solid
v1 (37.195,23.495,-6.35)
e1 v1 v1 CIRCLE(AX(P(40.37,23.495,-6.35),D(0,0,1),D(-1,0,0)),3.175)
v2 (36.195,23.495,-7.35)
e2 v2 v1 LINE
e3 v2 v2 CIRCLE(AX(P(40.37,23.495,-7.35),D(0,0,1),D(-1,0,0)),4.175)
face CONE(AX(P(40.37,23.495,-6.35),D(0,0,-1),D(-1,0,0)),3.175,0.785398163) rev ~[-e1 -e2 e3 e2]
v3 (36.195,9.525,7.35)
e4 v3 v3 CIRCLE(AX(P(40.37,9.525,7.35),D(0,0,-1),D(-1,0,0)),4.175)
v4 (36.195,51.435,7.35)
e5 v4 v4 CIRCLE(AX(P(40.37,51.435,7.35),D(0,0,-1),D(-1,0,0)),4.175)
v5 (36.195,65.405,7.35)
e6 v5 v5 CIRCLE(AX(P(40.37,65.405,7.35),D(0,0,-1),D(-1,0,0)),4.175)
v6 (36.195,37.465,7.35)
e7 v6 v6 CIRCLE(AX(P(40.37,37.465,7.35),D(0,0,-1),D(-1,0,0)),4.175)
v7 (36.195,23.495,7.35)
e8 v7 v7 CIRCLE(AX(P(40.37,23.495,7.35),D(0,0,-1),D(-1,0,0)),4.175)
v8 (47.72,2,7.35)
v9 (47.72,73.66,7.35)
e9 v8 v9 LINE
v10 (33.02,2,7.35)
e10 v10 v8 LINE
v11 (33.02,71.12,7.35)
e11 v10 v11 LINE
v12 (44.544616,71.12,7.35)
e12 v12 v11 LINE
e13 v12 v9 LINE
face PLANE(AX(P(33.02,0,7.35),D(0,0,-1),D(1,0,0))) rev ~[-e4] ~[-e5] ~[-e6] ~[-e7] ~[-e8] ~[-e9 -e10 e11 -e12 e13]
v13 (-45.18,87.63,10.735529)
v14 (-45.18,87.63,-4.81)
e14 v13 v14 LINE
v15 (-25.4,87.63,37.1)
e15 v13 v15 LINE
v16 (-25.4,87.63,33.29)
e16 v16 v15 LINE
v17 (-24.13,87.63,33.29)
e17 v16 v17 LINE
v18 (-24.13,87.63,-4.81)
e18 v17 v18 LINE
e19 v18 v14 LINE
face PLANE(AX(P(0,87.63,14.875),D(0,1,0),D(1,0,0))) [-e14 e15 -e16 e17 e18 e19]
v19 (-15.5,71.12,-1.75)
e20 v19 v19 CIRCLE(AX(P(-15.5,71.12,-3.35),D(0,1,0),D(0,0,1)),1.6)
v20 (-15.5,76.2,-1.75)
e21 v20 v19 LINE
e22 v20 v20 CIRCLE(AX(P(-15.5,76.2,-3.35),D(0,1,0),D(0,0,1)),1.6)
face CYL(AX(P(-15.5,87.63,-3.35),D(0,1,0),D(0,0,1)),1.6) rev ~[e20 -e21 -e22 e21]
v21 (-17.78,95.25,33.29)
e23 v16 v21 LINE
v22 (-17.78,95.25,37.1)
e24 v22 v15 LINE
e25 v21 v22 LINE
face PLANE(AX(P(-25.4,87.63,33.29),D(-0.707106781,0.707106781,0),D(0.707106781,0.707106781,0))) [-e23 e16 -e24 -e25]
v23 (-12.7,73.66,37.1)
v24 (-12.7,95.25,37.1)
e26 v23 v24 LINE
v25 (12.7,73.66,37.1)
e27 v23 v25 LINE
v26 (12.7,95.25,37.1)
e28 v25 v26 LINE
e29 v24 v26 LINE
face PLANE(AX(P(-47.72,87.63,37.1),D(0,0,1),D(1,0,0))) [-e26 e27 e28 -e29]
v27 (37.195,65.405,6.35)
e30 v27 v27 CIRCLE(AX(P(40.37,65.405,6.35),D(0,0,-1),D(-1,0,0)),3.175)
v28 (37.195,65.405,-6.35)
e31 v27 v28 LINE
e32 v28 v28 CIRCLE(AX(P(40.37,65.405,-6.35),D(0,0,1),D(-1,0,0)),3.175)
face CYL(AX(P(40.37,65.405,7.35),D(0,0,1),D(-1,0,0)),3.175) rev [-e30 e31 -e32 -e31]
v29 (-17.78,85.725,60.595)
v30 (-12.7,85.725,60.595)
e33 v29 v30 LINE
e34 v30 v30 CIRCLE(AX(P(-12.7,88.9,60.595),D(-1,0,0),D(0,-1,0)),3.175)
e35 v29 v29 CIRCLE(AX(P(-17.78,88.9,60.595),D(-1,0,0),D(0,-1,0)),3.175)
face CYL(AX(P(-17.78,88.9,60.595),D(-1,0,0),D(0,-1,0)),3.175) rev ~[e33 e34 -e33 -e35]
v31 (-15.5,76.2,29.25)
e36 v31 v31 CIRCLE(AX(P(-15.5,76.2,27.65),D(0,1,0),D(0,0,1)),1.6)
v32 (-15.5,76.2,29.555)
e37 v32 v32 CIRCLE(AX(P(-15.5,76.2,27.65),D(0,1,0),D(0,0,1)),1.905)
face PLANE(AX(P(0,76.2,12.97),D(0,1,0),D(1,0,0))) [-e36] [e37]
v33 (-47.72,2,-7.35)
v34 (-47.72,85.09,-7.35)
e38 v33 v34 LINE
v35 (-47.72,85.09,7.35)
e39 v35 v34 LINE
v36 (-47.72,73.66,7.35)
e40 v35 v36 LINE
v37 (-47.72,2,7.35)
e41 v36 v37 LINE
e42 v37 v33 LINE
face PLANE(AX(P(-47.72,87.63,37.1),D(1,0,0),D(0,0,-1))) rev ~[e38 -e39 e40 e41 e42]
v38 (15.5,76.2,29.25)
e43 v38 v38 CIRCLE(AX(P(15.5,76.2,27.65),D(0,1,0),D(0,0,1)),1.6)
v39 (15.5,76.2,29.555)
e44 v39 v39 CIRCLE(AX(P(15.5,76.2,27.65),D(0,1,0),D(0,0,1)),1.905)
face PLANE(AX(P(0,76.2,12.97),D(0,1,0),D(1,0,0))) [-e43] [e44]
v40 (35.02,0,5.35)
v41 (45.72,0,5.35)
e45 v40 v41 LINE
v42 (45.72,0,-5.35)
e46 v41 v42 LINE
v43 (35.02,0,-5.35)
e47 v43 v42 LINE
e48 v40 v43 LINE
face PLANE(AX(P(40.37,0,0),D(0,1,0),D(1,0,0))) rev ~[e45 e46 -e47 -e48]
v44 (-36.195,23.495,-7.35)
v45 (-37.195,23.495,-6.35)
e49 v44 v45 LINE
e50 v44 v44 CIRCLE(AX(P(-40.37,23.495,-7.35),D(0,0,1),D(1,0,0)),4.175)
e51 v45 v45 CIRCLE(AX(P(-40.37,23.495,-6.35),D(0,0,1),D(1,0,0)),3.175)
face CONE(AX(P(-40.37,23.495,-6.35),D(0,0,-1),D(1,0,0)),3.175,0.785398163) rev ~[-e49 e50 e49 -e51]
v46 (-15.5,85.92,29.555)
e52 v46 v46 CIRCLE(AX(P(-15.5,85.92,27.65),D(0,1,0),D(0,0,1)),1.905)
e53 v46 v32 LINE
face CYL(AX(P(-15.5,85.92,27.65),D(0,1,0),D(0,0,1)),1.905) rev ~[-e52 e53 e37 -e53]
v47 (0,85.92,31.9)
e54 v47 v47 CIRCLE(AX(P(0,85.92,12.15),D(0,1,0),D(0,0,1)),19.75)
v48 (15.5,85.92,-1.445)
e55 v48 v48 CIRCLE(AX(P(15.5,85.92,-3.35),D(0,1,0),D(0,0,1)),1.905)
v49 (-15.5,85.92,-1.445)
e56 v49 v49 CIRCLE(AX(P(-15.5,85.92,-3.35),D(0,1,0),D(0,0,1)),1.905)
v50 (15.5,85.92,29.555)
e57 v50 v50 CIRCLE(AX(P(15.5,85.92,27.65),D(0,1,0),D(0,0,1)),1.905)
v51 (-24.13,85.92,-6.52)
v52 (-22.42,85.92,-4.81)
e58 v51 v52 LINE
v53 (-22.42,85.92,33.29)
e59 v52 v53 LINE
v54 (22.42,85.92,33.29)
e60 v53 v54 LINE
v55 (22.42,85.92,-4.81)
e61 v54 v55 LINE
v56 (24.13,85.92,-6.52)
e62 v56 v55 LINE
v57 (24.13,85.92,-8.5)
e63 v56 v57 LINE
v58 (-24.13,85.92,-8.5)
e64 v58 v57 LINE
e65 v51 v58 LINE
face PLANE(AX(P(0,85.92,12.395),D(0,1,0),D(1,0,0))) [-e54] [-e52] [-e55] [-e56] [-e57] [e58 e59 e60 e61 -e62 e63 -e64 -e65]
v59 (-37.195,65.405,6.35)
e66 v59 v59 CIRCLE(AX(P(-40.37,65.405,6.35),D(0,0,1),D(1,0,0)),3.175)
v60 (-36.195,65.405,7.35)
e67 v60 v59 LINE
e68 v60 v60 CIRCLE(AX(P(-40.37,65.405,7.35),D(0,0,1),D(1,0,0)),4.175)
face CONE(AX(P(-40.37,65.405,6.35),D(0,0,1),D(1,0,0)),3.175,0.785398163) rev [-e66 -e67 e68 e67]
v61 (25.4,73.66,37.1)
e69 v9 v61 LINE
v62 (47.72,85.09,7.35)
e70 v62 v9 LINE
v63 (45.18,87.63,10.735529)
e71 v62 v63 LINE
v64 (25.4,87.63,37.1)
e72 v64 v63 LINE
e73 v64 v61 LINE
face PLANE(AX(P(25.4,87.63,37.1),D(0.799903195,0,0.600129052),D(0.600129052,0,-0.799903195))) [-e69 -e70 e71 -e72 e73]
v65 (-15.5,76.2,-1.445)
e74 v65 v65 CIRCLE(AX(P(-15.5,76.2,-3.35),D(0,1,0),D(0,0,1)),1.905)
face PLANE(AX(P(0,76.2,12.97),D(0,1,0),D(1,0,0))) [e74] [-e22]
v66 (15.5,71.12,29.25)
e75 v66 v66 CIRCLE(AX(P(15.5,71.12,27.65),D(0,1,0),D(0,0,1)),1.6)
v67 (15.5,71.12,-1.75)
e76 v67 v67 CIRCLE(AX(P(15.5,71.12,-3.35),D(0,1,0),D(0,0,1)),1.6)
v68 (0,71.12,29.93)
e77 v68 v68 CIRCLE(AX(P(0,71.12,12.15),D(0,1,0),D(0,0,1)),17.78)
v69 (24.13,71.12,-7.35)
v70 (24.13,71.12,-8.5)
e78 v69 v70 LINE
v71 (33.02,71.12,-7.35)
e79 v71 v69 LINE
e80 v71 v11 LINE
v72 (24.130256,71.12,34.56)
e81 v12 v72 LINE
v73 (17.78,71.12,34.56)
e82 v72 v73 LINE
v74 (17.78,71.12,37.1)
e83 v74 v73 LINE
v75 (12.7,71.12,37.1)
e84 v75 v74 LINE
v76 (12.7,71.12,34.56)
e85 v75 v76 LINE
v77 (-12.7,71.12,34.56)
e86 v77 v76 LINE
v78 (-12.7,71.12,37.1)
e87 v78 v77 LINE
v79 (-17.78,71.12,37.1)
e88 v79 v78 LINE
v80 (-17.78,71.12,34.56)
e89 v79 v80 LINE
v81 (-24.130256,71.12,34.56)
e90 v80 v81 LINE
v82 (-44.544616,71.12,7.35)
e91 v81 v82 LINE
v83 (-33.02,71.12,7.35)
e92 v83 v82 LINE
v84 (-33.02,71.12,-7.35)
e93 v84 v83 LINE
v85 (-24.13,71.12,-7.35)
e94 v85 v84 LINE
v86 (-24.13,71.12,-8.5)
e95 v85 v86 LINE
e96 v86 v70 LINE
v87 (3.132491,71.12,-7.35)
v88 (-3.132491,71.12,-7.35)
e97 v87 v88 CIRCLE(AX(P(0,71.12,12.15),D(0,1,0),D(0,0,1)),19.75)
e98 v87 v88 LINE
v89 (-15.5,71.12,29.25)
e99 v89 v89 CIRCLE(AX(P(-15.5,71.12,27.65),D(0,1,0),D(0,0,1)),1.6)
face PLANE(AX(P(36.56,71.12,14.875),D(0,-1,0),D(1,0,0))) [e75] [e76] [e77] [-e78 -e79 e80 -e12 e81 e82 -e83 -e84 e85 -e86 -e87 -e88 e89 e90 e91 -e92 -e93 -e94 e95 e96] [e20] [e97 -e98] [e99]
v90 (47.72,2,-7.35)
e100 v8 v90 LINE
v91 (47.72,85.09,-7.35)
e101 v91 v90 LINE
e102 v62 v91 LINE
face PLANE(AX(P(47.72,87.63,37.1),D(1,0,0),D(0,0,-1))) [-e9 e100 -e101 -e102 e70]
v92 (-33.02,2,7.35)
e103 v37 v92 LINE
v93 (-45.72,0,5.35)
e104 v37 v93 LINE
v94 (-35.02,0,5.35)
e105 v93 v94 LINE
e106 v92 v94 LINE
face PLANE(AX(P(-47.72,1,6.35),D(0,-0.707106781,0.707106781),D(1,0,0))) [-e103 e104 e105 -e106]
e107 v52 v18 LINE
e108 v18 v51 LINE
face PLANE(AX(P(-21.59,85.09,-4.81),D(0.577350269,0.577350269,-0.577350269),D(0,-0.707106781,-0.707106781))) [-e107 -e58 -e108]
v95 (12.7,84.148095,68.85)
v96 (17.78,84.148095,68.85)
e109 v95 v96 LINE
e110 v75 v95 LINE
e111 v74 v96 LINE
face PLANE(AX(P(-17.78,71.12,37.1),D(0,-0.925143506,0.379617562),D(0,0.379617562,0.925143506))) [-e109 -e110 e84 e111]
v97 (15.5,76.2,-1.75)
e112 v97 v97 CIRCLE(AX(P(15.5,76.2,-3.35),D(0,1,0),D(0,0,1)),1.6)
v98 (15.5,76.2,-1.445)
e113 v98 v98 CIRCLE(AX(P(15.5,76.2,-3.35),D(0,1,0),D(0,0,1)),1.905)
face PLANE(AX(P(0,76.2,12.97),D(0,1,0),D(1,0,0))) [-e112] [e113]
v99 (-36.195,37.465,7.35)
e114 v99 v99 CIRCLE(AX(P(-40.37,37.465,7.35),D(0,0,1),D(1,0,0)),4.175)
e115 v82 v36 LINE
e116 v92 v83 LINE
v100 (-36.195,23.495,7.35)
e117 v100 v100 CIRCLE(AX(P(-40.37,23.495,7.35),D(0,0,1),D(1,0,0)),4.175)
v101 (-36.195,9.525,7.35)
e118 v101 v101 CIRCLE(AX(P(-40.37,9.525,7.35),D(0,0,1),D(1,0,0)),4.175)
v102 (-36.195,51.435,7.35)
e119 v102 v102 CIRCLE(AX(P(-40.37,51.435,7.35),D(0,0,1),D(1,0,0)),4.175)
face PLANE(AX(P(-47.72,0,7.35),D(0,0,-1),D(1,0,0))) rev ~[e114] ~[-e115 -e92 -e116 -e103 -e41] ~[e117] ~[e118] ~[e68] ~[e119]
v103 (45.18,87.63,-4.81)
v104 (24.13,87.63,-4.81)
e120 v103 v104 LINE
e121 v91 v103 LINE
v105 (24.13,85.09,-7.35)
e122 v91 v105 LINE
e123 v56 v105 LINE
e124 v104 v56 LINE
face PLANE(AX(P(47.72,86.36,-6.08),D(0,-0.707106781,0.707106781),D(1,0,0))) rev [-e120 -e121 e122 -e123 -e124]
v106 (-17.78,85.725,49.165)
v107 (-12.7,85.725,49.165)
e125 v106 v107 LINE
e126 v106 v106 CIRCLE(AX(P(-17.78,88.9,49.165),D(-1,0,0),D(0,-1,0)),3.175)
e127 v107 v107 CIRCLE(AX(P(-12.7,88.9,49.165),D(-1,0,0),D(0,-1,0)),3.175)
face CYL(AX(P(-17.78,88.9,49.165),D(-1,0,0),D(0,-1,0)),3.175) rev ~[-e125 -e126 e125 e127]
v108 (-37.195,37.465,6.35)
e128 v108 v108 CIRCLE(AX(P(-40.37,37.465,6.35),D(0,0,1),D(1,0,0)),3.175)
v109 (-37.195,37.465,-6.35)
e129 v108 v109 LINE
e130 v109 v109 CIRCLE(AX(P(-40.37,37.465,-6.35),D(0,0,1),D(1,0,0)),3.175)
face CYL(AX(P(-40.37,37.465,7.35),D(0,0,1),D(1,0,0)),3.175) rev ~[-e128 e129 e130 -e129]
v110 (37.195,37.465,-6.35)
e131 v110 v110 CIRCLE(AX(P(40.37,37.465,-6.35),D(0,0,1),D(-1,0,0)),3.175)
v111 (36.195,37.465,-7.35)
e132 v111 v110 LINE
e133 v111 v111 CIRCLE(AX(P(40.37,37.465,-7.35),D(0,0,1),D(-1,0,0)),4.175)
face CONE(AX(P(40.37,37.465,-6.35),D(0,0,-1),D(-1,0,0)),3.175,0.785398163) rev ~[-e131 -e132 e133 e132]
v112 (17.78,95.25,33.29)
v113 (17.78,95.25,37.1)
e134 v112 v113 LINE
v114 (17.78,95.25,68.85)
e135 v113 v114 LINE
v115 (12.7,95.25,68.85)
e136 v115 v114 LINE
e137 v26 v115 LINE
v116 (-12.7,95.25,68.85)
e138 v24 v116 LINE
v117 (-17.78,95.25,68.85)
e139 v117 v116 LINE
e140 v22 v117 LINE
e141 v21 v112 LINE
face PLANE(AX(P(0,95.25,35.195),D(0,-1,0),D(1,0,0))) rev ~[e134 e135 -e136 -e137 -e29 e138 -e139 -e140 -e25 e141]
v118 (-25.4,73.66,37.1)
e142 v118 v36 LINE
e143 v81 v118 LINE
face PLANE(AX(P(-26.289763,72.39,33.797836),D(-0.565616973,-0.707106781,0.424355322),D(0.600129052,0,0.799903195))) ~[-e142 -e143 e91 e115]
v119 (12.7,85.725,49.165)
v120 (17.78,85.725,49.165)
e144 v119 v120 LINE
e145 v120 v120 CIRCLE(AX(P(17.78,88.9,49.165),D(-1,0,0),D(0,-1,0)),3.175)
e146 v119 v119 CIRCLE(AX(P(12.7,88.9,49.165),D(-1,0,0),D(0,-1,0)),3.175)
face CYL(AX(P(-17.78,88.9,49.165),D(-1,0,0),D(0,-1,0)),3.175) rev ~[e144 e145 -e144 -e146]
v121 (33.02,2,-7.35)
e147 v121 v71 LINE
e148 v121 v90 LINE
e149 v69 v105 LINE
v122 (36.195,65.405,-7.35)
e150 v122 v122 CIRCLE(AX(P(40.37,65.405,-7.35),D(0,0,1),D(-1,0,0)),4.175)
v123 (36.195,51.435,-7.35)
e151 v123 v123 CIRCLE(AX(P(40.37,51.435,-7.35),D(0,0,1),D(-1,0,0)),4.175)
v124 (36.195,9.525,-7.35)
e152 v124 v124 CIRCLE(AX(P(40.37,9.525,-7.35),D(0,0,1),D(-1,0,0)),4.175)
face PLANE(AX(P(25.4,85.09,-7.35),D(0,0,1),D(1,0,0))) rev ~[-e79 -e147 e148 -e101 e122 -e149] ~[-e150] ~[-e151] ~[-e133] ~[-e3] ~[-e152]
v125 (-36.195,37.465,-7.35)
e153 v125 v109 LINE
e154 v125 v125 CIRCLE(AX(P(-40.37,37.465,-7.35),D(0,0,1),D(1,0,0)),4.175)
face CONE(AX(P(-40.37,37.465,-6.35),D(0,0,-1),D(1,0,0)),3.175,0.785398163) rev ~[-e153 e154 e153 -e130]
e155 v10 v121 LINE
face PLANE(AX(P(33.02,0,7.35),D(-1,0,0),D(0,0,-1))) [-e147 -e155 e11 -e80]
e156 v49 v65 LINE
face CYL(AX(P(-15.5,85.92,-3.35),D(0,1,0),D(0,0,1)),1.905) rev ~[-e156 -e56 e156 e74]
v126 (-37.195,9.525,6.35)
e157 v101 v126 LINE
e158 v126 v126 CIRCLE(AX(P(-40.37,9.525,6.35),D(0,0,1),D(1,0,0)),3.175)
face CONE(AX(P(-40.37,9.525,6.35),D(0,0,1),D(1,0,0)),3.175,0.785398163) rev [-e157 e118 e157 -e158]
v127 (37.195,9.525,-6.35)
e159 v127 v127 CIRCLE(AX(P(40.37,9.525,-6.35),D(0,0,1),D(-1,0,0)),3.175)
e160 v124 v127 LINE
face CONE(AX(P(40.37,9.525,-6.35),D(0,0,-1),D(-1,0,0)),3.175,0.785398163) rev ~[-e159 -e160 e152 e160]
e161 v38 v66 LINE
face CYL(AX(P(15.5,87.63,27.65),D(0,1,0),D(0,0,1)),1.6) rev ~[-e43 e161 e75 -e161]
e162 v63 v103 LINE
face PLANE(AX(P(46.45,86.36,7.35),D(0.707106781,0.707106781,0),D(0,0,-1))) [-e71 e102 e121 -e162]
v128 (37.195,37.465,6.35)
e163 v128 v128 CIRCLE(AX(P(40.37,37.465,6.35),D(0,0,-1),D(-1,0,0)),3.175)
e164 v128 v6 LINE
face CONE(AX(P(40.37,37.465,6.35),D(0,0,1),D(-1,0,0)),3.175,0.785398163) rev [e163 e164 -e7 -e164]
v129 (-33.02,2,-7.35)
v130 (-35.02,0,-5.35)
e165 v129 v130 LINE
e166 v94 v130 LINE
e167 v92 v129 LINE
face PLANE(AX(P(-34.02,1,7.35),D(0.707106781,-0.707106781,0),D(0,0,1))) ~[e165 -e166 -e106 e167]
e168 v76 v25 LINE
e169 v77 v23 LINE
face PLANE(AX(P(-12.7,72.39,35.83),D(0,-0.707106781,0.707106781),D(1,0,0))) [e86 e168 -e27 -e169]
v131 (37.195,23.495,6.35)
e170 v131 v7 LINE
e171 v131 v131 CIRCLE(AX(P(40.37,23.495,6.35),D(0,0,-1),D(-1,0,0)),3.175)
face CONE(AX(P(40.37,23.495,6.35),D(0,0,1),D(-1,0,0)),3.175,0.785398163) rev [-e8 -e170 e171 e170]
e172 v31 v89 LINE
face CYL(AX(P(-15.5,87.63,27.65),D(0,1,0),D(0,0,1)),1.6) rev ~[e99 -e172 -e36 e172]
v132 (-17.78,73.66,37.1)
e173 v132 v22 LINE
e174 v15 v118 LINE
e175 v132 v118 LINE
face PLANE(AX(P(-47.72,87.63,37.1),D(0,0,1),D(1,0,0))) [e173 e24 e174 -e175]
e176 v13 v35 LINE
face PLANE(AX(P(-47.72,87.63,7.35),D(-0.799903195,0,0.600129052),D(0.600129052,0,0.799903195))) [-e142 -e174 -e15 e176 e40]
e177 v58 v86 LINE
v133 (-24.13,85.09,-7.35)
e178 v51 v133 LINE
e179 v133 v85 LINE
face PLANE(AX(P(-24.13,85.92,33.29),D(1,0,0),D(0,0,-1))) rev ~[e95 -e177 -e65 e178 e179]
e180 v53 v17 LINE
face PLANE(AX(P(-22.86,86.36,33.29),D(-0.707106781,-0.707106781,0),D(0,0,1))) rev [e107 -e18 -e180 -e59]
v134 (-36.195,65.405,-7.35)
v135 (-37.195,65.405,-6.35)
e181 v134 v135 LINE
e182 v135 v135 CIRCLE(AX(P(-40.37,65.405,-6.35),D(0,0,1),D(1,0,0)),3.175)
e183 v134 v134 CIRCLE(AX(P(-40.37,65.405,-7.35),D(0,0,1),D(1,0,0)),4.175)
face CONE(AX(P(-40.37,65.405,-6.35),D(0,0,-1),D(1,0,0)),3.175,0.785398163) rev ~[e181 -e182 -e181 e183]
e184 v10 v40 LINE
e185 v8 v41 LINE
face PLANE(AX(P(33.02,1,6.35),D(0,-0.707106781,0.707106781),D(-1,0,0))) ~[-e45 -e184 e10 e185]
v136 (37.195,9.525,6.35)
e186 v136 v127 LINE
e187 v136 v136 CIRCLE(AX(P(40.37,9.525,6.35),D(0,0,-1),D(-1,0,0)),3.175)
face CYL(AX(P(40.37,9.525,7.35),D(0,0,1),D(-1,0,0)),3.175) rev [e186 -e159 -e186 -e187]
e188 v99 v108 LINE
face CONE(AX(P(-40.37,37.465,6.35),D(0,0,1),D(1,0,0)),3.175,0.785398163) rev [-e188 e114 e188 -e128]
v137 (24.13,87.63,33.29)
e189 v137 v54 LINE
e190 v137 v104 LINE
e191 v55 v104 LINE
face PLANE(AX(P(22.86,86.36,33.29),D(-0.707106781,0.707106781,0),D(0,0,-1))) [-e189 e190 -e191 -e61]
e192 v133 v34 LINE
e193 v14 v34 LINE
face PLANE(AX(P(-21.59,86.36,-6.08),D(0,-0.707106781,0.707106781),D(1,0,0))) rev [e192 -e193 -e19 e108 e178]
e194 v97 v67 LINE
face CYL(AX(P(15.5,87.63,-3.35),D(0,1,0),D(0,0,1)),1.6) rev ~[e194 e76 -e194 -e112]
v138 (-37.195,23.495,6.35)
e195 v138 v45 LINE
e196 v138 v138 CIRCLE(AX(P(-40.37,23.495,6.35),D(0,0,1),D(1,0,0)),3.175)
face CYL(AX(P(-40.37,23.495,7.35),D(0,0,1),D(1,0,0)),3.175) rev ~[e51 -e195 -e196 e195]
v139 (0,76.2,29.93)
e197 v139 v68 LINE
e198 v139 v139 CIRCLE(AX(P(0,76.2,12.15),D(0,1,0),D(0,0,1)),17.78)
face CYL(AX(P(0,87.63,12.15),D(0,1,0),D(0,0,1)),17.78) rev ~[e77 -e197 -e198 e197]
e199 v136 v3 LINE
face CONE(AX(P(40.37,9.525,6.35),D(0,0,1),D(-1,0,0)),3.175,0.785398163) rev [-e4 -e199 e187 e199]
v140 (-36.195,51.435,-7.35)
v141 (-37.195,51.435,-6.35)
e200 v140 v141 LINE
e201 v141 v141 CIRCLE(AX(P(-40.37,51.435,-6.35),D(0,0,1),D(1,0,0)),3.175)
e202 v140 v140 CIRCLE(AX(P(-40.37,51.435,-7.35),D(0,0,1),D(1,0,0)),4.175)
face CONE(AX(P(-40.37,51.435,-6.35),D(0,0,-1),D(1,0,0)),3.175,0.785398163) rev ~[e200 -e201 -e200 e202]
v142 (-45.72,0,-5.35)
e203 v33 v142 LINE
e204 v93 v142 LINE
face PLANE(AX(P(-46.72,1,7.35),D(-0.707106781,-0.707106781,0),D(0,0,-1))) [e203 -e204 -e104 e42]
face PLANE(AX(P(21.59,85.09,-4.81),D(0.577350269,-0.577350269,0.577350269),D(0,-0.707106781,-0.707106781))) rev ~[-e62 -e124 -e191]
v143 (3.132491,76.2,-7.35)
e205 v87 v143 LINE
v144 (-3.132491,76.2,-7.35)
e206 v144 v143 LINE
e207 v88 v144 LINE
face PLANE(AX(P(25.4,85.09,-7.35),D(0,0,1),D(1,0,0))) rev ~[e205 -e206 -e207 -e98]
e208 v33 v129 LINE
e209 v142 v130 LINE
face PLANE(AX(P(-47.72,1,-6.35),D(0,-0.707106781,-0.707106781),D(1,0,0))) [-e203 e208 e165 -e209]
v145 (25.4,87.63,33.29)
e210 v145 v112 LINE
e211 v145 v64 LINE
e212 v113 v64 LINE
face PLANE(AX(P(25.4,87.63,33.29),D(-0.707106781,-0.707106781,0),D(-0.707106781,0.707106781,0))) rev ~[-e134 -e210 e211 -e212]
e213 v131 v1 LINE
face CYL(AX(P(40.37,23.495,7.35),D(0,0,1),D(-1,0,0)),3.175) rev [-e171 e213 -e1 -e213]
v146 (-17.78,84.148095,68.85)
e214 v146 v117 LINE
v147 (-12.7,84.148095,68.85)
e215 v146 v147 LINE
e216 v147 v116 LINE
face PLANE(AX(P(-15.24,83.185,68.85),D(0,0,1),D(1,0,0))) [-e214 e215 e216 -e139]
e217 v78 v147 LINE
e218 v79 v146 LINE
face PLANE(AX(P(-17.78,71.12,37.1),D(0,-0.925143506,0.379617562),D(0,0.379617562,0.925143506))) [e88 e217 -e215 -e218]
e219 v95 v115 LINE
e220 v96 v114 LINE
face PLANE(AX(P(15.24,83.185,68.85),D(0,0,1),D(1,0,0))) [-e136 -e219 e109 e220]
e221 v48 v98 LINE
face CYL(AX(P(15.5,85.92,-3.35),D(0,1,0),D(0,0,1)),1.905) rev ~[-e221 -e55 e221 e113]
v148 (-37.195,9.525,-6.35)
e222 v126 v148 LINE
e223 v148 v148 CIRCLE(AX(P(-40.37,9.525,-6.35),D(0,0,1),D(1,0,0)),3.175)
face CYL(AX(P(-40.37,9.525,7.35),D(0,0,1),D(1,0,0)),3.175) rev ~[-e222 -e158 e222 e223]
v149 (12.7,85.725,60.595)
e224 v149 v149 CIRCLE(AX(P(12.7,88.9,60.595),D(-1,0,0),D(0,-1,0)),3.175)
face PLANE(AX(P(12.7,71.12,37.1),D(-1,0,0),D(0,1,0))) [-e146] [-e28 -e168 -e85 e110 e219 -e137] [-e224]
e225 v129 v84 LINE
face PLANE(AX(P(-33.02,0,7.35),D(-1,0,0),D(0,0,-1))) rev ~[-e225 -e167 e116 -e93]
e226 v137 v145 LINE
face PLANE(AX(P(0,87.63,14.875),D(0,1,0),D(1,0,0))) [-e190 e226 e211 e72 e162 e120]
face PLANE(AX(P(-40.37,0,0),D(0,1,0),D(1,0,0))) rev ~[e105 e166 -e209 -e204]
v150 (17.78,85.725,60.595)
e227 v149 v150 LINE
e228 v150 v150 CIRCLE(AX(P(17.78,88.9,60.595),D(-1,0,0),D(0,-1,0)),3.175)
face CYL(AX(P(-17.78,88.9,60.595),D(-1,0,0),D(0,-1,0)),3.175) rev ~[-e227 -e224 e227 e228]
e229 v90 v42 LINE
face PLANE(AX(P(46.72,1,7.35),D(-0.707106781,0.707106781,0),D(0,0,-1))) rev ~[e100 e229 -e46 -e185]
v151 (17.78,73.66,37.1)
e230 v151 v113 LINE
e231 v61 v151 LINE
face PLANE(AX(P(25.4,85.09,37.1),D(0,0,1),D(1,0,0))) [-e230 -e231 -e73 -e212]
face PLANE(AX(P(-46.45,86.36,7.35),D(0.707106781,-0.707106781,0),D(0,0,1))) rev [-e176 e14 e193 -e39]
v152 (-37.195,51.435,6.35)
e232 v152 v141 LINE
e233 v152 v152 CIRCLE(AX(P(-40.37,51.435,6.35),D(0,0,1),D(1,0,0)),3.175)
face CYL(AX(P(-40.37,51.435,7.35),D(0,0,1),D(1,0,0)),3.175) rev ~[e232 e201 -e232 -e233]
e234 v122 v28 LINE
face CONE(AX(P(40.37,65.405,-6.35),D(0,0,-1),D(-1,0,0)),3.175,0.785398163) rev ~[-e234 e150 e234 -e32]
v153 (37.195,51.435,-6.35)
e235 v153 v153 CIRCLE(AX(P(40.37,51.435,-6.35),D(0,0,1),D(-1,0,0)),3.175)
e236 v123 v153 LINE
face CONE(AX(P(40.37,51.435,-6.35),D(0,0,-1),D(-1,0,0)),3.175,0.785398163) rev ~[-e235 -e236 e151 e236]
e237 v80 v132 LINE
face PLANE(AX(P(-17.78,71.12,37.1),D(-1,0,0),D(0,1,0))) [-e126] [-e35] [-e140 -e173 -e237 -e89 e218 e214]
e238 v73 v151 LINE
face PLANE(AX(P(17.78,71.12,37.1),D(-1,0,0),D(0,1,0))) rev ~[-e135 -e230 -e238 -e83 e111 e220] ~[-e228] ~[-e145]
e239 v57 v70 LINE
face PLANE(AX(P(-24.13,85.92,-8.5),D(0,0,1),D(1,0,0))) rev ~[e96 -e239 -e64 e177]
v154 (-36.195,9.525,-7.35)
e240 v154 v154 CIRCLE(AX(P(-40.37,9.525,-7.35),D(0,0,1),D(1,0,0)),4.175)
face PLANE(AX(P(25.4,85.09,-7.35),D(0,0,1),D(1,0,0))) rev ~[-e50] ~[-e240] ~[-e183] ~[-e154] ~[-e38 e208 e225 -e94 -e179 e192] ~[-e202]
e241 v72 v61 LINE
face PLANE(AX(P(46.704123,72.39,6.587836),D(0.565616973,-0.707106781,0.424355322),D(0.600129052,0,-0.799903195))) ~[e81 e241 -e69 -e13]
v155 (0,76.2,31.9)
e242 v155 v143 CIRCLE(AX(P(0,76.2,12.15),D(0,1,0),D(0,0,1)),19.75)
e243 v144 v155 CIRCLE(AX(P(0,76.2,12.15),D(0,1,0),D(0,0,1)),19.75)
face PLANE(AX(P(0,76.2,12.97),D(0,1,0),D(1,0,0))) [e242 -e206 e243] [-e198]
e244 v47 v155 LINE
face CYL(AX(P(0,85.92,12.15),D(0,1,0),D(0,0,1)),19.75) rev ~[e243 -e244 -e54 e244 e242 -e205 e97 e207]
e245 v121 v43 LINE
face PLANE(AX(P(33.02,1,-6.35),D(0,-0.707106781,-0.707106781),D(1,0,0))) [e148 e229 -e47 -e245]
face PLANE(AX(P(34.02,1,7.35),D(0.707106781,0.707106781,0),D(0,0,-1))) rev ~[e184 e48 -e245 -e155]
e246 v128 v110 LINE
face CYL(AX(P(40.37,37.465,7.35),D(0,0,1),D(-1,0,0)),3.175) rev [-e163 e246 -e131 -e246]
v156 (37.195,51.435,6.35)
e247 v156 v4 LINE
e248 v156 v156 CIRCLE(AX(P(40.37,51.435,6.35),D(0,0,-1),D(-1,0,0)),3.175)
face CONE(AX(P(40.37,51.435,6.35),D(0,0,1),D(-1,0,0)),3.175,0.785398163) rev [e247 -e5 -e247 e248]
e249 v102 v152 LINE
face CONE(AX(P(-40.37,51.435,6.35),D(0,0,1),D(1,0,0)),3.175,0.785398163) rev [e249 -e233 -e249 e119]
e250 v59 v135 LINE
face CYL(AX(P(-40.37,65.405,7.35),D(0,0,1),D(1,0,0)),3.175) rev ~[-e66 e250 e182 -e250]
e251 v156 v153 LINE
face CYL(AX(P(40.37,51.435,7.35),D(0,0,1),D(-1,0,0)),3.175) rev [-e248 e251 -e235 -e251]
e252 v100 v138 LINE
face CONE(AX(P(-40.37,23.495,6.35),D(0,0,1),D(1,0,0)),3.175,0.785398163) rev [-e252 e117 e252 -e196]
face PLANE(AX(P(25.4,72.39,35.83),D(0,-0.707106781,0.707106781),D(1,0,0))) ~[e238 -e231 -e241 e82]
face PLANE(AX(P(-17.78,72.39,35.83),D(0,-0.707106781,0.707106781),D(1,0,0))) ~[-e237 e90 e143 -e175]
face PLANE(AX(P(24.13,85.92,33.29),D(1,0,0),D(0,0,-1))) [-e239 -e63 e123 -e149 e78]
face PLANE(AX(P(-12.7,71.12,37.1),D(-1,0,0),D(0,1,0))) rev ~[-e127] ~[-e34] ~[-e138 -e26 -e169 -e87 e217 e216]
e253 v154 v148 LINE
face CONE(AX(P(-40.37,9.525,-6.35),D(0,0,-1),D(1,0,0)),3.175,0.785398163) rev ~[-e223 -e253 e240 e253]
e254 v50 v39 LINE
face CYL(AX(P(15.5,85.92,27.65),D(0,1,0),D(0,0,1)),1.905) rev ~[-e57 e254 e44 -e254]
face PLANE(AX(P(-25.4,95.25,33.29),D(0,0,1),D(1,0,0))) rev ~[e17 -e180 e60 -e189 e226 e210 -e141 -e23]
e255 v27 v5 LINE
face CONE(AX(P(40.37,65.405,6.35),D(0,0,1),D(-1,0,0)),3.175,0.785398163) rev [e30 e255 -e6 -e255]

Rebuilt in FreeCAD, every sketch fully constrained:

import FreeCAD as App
import Part
import Sketcher
from FreeCAD import Vector
Q = App.Units.Quantity


def edges_at(feature, points):
    """Names of the edges that pass closest to the given points."""
    edges = feature.Shape.Edges
    near = lambda p: min(range(len(edges)), key=lambda i: edges[i].distToShape(Part.Vertex(*p))[0])
    return sorted({f"Edge{near(p) + 1}" for p in points})


def add_polygon(sketch, points):
    """Adds a closed chain of lines whose ends are joined by coincident constraints."""
    first, n = sketch.GeometryCount, len(points)
    for a, b in zip(points, points[1:] + points[:1]):
        sketch.addGeometry(Part.LineSegment(App.Vector(*a, 0), App.Vector(*b, 0)), False)
    for i in range(n):
        sketch.addConstraint(Sketcher.Constraint("Coincident", first + i, 2, first + (i + 1) % n, 1))

doc = App.newDocument("Part")
body = doc.addObject("PartDesign::Body", "Body")

sketch1 = body.newObject("Sketcher::SketchObject", "Sketch")
sketch1.AttachmentSupport = (doc.getObject("XZ_Plane"), [""])
sketch1.MapMode = "FlatFace"
add_polygon(sketch1, [(33, -7), (33, 7), (48, 7), (48, -7)])
sketch1.addConstraint([
    Sketcher.Constraint("Vertical", 0),
    Sketcher.Constraint("Horizontal", 1),
    Sketcher.Constraint("Vertical", 2),
    Sketcher.Constraint("Horizontal", 3),
    Sketcher.Constraint("Equal", 3, 0),
    Sketcher.Constraint("DistanceX", -1, 1, 0, 2, Q("1.3 in")),
    Sketcher.Constraint("DistanceX", 1, 1, 1, 2, 14.7),
    Sketcher.Constraint("DistanceY", -1, 1, 0, 2, 7.35),
])
pad1 = body.newObject("PartDesign::Pad", "Pad")
pad1.Profile = sketch1
pad1.Length = Q("3.45 in")
pad1.Reversed = True
body2 = doc.addObject("PartDesign::Body", "Body001")

sketch2 = body2.newObject("Sketcher::SketchObject", "Sketch001")
sketch2.AttachmentSupport = (doc.getObject("XZ_Plane001"), [""])
sketch2.MapMode = "FlatFace"
add_polygon(sketch2, [(-48, -7), (-48, 7), (-33, 7), (-33, -7)])
sketch2.addConstraint([
    Sketcher.Constraint("Vertical", 0),
    Sketcher.Constraint("Horizontal", 1),
    Sketcher.Constraint("Vertical", 2),
    Sketcher.Constraint("Horizontal", 3),
    Sketcher.Constraint("Equal", 3, 0),
    Sketcher.Constraint("DistanceX", 1, 2, -1, 1, Q("1.3 in")),
    Sketcher.Constraint("DistanceX", 1, 1, 1, 2, 14.7),
    Sketcher.Constraint("DistanceY", -1, 1, 0, 2, 7.35),
])
pad2 = body2.newObject("PartDesign::Pad", "Pad001")
pad2.Profile = sketch2
pad2.Length = Q("3.45 in")
pad2.Reversed = True
body.AllowCompound = True
doc.recompute()

boolean = body.newObject("PartDesign::Boolean", "Boolean")
boolean.Type = "Fuse"
boolean.addObjects([body2])

sketch3 = body.newObject("Sketcher::SketchObject", "Sketch002")
sketch3.AttachmentSupport = (doc.getObject("XZ_Plane"), [""])
sketch3.MapMode = "FlatFace"
sketch3.AttachmentOffset = App.Placement(Vector(0, 0, -3.45 * 25.4), App.Rotation())
add_polygon(sketch3, [(-48, -7), (-48, 37), (48, 37), (48, -7)])
sketch3.addConstraint([
    Sketcher.Constraint("Vertical", 0),
    Sketcher.Constraint("Horizontal", 1),
    Sketcher.Constraint("Vertical", 2),
    Sketcher.Constraint("Horizontal", 3),
    Sketcher.Constraint("DistanceY", 0, 1, 0, 2, Q("1.75 in")),
    Sketcher.Constraint("DistanceX", 1, 1, 1, 2, 95.44),
    Sketcher.Constraint("DistanceX", 0, 2, -1, 1, 47.72),
    Sketcher.Constraint("DistanceY", -1, 1, 0, 2, 37.1),
])
pad3 = body.newObject("PartDesign::Pad", "Pad002")
pad3.Profile = sketch3
pad3.Length = Q("0.1 in")
doc.recompute()

chamfer = body.newObject("PartDesign::Chamfer", "Chamfer")
chamfer.Base = (pad3, edges_at(pad3, [
    (-47.72, 0, 0),
    (-33.02, 0, 0),
    (-40.37, 0, 7.35),
    (-40.37, 0, -7.35),
    (40.37, 0, -7.35),
    (47.72, 0, 0),
    (40.37, 0, 7.35),
    (33.02, 0, 0),
]))
chamfer.Size = 2

sketch4 = body.newObject("Sketcher::SketchObject", "Sketch003")
sketch4.AttachmentSupport = (doc.getObject("XZ_Plane"), [""])
sketch4.MapMode = "FlatFace"
sketch4.AttachmentOffset = App.Placement(Vector(0, 0, -3.35 * 25.4), App.Rotation())
add_polygon(sketch4, [(-25, 37), (-25, -7), (25, -7), (25, 37)])
sketch4.addConstraint([
    Sketcher.Constraint("Vertical", 0),
    Sketcher.Constraint("Horizontal", 1),
    Sketcher.Constraint("Vertical", 2),
    Sketcher.Constraint("Horizontal", 3),
    Sketcher.Constraint("DistanceX", 1, 1, 1, 2, Q("2 in")),
    Sketcher.Constraint("DistanceX", 0, 2, -1, 1, Q("1 in")),
    Sketcher.Constraint("DistanceY", 0, 2, 0, 1, Q("1.75 in")),
    Sketcher.Constraint("DistanceY", 0, 2, -1, 1, 7.35),
])
pad4 = body.newObject("PartDesign::Pad", "Pad003")
pad4.Profile = sketch4
pad4.Length = Q("0.55 in")

sketch5 = body.newObject("Sketcher::SketchObject", "Sketch004")
sketch5.AttachmentSupport = (doc.getObject("XZ_Plane"), [""])
sketch5.MapMode = "FlatFace"
sketch5.AttachmentOffset = App.Placement(Vector(0, 0, -3.45 * 25.4), App.Rotation())
sketch5.addGeometry([
    Part.Circle(Vector(0, 12.2, 0), Vector(0, 0, 1), 17.8),
    Part.Circle(Vector(-15.5, -3.4, 0), Vector(0, 0, 1), 1.6),
    Part.Circle(Vector(-15.5, 27.6, 0), Vector(0, 0, 1), 1.6),
    Part.Circle(Vector(15.5, 27.6, 0), Vector(0, 0, 1), 1.6),
    Part.Circle(Vector(15.5, -3.4, 0), Vector(0, 0, 1), 1.6),
], False)
sketch5.addConstraint([
    Sketcher.Constraint("Equal", 1, 2),
    Sketcher.Constraint("Equal", 2, 3),
    Sketcher.Constraint("Equal", 3, 4),
    Sketcher.Constraint("Symmetric", 2, 3, 3, 3, -2),
    Sketcher.Constraint("Symmetric", 1, 3, 4, 3, -2),
    Sketcher.Constraint("PointOnObject", 0, 3, -2),
    Sketcher.Constraint("Vertical", 1, 3, 2, 3),
    Sketcher.Constraint("Diameter", 0, Q("1.4 in")),
    Sketcher.Constraint("Diameter", 1, 3.2),
    Sketcher.Constraint("DistanceY", -1, 1, 0, 3, 12.15),
    Sketcher.Constraint("DistanceX", 1, 3, -1, 1, 15.5),
    Sketcher.Constraint("DistanceY", 1, 3, -1, 1, 3.35),
    Sketcher.Constraint("DistanceY", -1, 1, 2, 3, 27.65),
])
pocket1 = body.newObject("PartDesign::Pocket", "Pocket")
pocket1.Profile = sketch5
pocket1.Type = "ThroughAll"
pocket1.Reversed = True

sketch6 = body.newObject("Sketcher::SketchObject", "Sketch005")
sketch6.AttachmentSupport = (doc.getObject("XZ_Plane"), [""])
sketch6.MapMode = "FlatFace"
sketch6.AttachmentOffset = App.Placement(Vector(0, 0, -3.35 * 25.4), App.Rotation())
add_polygon(sketch6, [(-25.4, 37.1), (-25.4, 33.3), (25.4, 33.3), (25.4, 37.1)])
sketch6.addConstraint([
    Sketcher.Constraint("Vertical", 0),
    Sketcher.Constraint("Horizontal", 1),
    Sketcher.Constraint("Vertical", 2),
    Sketcher.Constraint("Horizontal", 3),
    Sketcher.Constraint("DistanceX", 1, 1, 1, 2, Q("2 in")),
    Sketcher.Constraint("DistanceX", 0, 2, -1, 1, Q("1 in")),
    Sketcher.Constraint("DistanceY", 0, 2, 0, 1, Q("0.15 in")),
    Sketcher.Constraint("DistanceY", -1, 1, 0, 2, 33.29),
])
pad5 = body.newObject("PartDesign::Pad", "Pad004")
pad5.Profile = sketch6
pad5.Type = "TwoLengths"
pad5.Length = Q("0.2 in")
pad5.Length2 = Q("0.4 in")

sketch7 = body.newObject("Sketcher::SketchObject", "Sketch006")
sketch7.AttachmentSupport = (doc.getObject("XY_Plane"), [""])
sketch7.MapMode = "FlatFace"
sketch7.AttachmentOffset = App.Placement(Vector(0, 0, 37.1), App.Rotation())
add_polygon(sketch7, [(-18, 95), (-18, 71), (-13, 71), (-13, 95)])
add_polygon(sketch7, [(13, 95), (13, 71), (18, 71), (18, 95)])
sketch7.addConstraint([
    Sketcher.Constraint("Vertical", 0),
    Sketcher.Constraint("Horizontal", 1),
    Sketcher.Constraint("Vertical", 2),
    Sketcher.Constraint("Horizontal", 3),
    Sketcher.Constraint("Vertical", 4),
    Sketcher.Constraint("Horizontal", 5),
    Sketcher.Constraint("Vertical", 6),
    Sketcher.Constraint("Horizontal", 7),
    Sketcher.Constraint("Symmetric", 1, 2, 4, 2, -2),
    Sketcher.Constraint("Symmetric", 3, 2, 6, 2, -2),
    Sketcher.Constraint("DistanceX", 1, 1, 1, 2, Q("0.2 in")),
    Sketcher.Constraint("DistanceX", 1, 2, 4, 2, Q("1 in")),
    Sketcher.Constraint("DistanceY", 0, 2, 0, 1, Q("0.95 in")),
    Sketcher.Constraint("DistanceY", -1, 1, 0, 2, Q("2.8 in")),
])
pad6 = body.newObject("PartDesign::Pad", "Pad005")
pad6.Profile = sketch7
pad6.Length = Q("1.25 in")

sketch8 = body.newObject("Sketcher::SketchObject", "Sketch007")
sketch8.AttachmentSupport = (doc.getObject("YZ_Plane"), [""])
sketch8.MapMode = "FlatFace"
sketch8.AttachmentOffset = App.Placement(Vector(0, 0, -0.7 * 25.4), App.Rotation())
sketch8.addGeometry([
    Part.Circle(Vector(88.9, 49.2, 0), Vector(0, 0, 1), 3.2),
    Part.Circle(Vector(88.9, 60.6, 0), Vector(0, 0, 1), 3.2),
], False)
sketch8.addConstraint([
    Sketcher.Constraint("Equal", 0, 1),
    Sketcher.Constraint("Vertical", 0, 3, 1, 3),
    Sketcher.Constraint("Diameter", 0, Q("0.25 in")),
    Sketcher.Constraint("DistanceX", -1, 1, 0, 3, Q("3.5 in")),
    Sketcher.Constraint("DistanceY", 0, 3, 1, 3, Q("0.45 in")),
    Sketcher.Constraint("DistanceY", -1, 1, 0, 3, 49.165),
])
pocket2 = body.newObject("PartDesign::Pocket", "Pocket001")
pocket2.Profile = sketch8
pocket2.Type = "ThroughAll"
pocket2.Reversed = True

sketch9 = body.newObject("Sketcher::SketchObject", "Sketch008")
sketch9.AttachmentSupport = (doc.getObject("XY_Plane"), [""])
sketch9.MapMode = "FlatFace"
sketch9.AttachmentOffset = App.Placement(Vector(0, 0, 7.35), App.Rotation())
sketch9.addGeometry([
    Part.Circle(Vector(-40.4, 65.4, 0), Vector(0, 0, 1), 3.2),
    Part.Circle(Vector(-40.4, 51.4, 0), Vector(0, 0, 1), 3.2),
    Part.Circle(Vector(-40.4, 37.5, 0), Vector(0, 0, 1), 3.2),
    Part.Circle(Vector(-40.4, 23.5, 0), Vector(0, 0, 1), 3.2),
    Part.Circle(Vector(-40.4, 9.5, 0), Vector(0, 0, 1), 3.2),
], False)
sketch9.addConstraint([
    Sketcher.Constraint("Equal", 0, 1),
    Sketcher.Constraint("Equal", 1, 2),
    Sketcher.Constraint("Equal", 2, 3),
    Sketcher.Constraint("Equal", 3, 4),
    Sketcher.Constraint("Vertical", 0, 3, 1, 3),
    Sketcher.Constraint("Vertical", 1, 3, 2, 3),
    Sketcher.Constraint("Vertical", 2, 3, 3, 3),
    Sketcher.Constraint("Vertical", 3, 3, 4, 3),
    Sketcher.Constraint("Diameter", 0, Q("0.25 in")),
    Sketcher.Constraint("DistanceY", 2, 3, 0, 3, Q("1.1 in")),
    Sketcher.Constraint("DistanceY", 3, 3, 1, 3, Q("1.1 in")),
    Sketcher.Constraint("DistanceY", 4, 3, 2, 3, Q("1.1 in")),
    Sketcher.Constraint("DistanceY", 1, 3, 0, 3, Q("0.55 in")),
    Sketcher.Constraint("DistanceY", -1, 1, 0, 3, Q("2.575 in")),
    Sketcher.Constraint("DistanceX", 0, 3, -1, 1, 40.37),
])
pocket3 = body.newObject("PartDesign::Pocket", "Pocket002")
pocket3.Profile = sketch9
pocket3.Type = "ThroughAll"
doc.recompute()

mirrored = body.newObject("PartDesign::Mirrored", "Mirrored")
mirrored.Originals = [pocket3]
mirrored.MirrorPlane = (doc.getObject("YZ_Plane"), [""])
body.Tip = mirrored
doc.recompute()

chamfer2 = body.newObject("PartDesign::Chamfer", "Chamfer001")
chamfer2.Base = (mirrored, edges_at(mirrored, [
    (-43.545, 65.405, -7.35),
    (-43.545, 65.405, 7.35),
    (-43.545, 23.495, -7.35),
    (-43.545, 23.495, 7.35),
    (-43.545, 37.465, -7.35),
    (-43.545, 37.465, 7.35),
    (-43.545, 51.435, -7.35),
    (-43.545, 51.435, 7.35),
    (-43.545, 9.525, -7.35),
    (-43.545, 9.525, 7.35),
    (43.545, 65.405, 7.35),
    (43.545, 65.405, -7.35),
    (43.545, 23.495, 7.35),
    (43.545, 23.495, -7.35),
    (43.545, 37.465, 7.35),
    (43.545, 37.465, -7.35),
    (43.545, 51.435, 7.35),
    (43.545, 51.435, -7.35),
    (43.545, 9.525, 7.35),
    (43.545, 9.525, -7.35),
]))
chamfer2.Size = 1

sketch10 = body.newObject("Sketcher::SketchObject", "Sketch009")
sketch10.AttachmentSupport = (doc.getObject("XZ_Plane"), [""])
sketch10.MapMode = "FlatFace"
sketch10.AttachmentOffset = App.Placement(Vector(0, 0, -3 * 25.4), App.Rotation())
add_polygon(sketch10, [(-22, -7), (-22, 33), (22, 33), (22, -7)])
sketch10.addConstraint([
    Sketcher.Constraint("Vertical", 0),
    Sketcher.Constraint("Horizontal", 1),
    Sketcher.Constraint("Vertical", 2),
    Sketcher.Constraint("Horizontal", 3),
    Sketcher.Constraint("DistanceX", 1, 1, 1, 2, Q("1.7 in")),
    Sketcher.Constraint("DistanceY", 0, 1, 0, 2, Q("1.6 in")),
    Sketcher.Constraint("DistanceX", 0, 2, -1, 1, Q("0.85 in")),
    Sketcher.Constraint("DistanceY", -1, 1, 0, 2, 33.29),
])
pocket4 = body.newObject("PartDesign::Pocket", "Pocket003")
pocket4.Profile = sketch10
pocket4.Length = Q("0.45 in")

sketch11 = body.newObject("Sketcher::SketchObject", "Sketch010")
sketch11.AttachmentSupport = (doc.getObject("XZ_Plane"), [""])
sketch11.MapMode = "FlatFace"
sketch11.AttachmentOffset = App.Placement(Vector(0, 0, -3.35 * 25.4), App.Rotation())
add_polygon(sketch11, [(25, 37), (25, -7), (48, -7), (48, 37)])
add_polygon(sketch11, [(-48, 37), (-48, -7), (-25, -7), (-25, 37)])
sketch11.addConstraint([
    Sketcher.Constraint("Vertical", 0),
    Sketcher.Constraint("Horizontal", 1),
    Sketcher.Constraint("Vertical", 2),
    Sketcher.Constraint("Horizontal", 3),
    Sketcher.Constraint("Vertical", 4),
    Sketcher.Constraint("Horizontal", 5),
    Sketcher.Constraint("Vertical", 6),
    Sketcher.Constraint("Horizontal", 7),
    Sketcher.Constraint("Symmetric", 1, 2, 4, 2, -2),
    Sketcher.Constraint("Symmetric", 3, 2, 6, 2, -2),
    Sketcher.Constraint("DistanceX", -1, 1, 0, 2, Q("1 in")),
    Sketcher.Constraint("DistanceY", 0, 2, 0, 1, Q("1.75 in")),
    Sketcher.Constraint("DistanceX", 1, 1, 1, 2, 22.32),
    Sketcher.Constraint("DistanceY", 0, 2, -1, 1, 7.35),
])
pad7 = body.newObject("PartDesign::Pad", "Pad006")
pad7.Profile = sketch11
pad7.Length = Q("0.55 in")

sketch12 = body.newObject("Sketcher::SketchObject", "Sketch011")
sketch12.AttachmentSupport = (doc.getObject("YZ_Plane"), [""])
sketch12.MapMode = "FlatFace"
sketch12.AttachmentOffset = App.Placement(Vector(0, 0, -0.7 * 25.4), App.Rotation())
add_polygon(sketch12, [(84, 69), (71, 37), (71, 69)])
sketch12.addConstraint([
    Sketcher.Constraint("Vertical", 1),
    Sketcher.Constraint("Horizontal", 2),
    Sketcher.Constraint("DistanceY", 1, 1, 1, 2, Q("1.25 in")),
    Sketcher.Constraint("DistanceX", -1, 1, 0, 2, Q("2.8 in")),
    Sketcher.Constraint("Angle", 0, Q("-112.309996 deg")),
    Sketcher.Constraint("DistanceY", -1, 1, 0, 2, 37.1),
])
pocket5 = body.newObject("PartDesign::Pocket", "Pocket004")
pocket5.Profile = sketch12
pocket5.Type = "ThroughAll"
pocket5.Reversed = True

sketch13 = body.newObject("Sketcher::SketchObject", "Sketch012")
sketch13.AttachmentSupport = (doc.getObject("XZ_Plane"), [""])
sketch13.MapMode = "FlatFace"
sketch13.AttachmentOffset = App.Placement(Vector(0, 0, -3.45 * 25.4), App.Rotation())
add_polygon(sketch13, [(25, 37), (48, 7), (48, 37)])
add_polygon(sketch13, [(-48, 7), (-25, 37), (-48, 37)])
sketch13.addConstraint([
    Sketcher.Constraint("Vertical", 1),
    Sketcher.Constraint("Horizontal", 2),
    Sketcher.Constraint("Horizontal", 4),
    Sketcher.Constraint("Vertical", 5),
    Sketcher.Constraint("Symmetric", 2, 2, 3, 2, -2),
    Sketcher.Constraint("Symmetric", 0, 2, 5, 2, -2),
    Sketcher.Constraint("DistanceX", -1, 1, 2, 2, Q("1 in")),
    Sketcher.Constraint("DistanceX", 2, 2, 2, 1, 22.32),
    Sketcher.Constraint("DistanceY", 1, 1, 1, 2, 29.75),
    Sketcher.Constraint("DistanceY", -1, 1, 0, 2, 7.35),
])
pocket6 = body.newObject("PartDesign::Pocket", "Pocket005")
pocket6.Profile = sketch13
pocket6.Type = "ThroughAll"
pocket6.Reversed = True

sketch14 = body.newObject("Sketcher::SketchObject", "Sketch013")
sketch14.AttachmentSupport = (doc.getObject("XY_Plane"), [""])
sketch14.MapMode = "FlatFace"
sketch14.AttachmentOffset = App.Placement(Vector(0, 0, 33.29), App.Rotation())
add_polygon(sketch14, [(25, 88), (18, 95), (25, 95)])
add_polygon(sketch14, [(-18, 95), (-25, 88), (-25, 95)])
sketch14.addConstraint([
    Sketcher.Constraint("Horizontal", 1),
    Sketcher.Constraint("Vertical", 2),
    Sketcher.Constraint("Vertical", 4),
    Sketcher.Constraint("Horizontal", 5),
    Sketcher.Constraint("Symmetric", 2, 2, 3, 2, -2),
    Sketcher.Constraint("Symmetric", 0, 2, 5, 2, -2),
    Sketcher.Constraint("Perpendicular", 0, 3),
    Sketcher.Constraint("DistanceX", 1, 1, 1, 2, Q("0.3 in")),
    Sketcher.Constraint("DistanceX", -1, 1, 1, 2, Q("1 in")),
    Sketcher.Constraint("DistanceY", -1, 1, 0, 2, Q("3.75 in")),
])
pocket7 = body.newObject("PartDesign::Pocket", "Pocket006")
pocket7.Profile = sketch14
pocket7.Type = "ThroughAll"
pocket7.Reversed = True
doc.recompute()

chamfer3 = body.newObject("PartDesign::Chamfer", "Chamfer002")
chamfer3.Base = (pocket7, edges_at(pocket7, [
    (0, 71.12, 37.1),
    (-21.59, 71.12, 37.1),
    (34.655, 87.63, -7.35),
    (-47.72, 87.63, 0),
    (-34.655, 87.63, -7.35),
    (-21.59, 87.63, 12.97),
    (21.59, 87.63, 12.97),
    (-21.59, 81.915, -7.35),
    (21.59, 81.915, -7.35),
    (21.59, 71.12, 37.1),
    (47.72, 87.63, 0),
]))
chamfer3.Size = Q("0.1 in")
doc.recompute()

chamfer4 = body.newObject("PartDesign::Chamfer", "Chamfer003")
chamfer4.Base = (chamfer3, edges_at(chamfer3, [(37.513, 71.12, 20.955), (-37.513, 71.12, 20.955)]))
chamfer4.Size = Q("0.1 in")

sketch15 = body.newObject("Sketcher::SketchObject", "Sketch014")
sketch15.AttachmentSupport = (doc.getObject("XZ_Plane"), [""])
sketch15.MapMode = "FlatFace"
sketch15.AttachmentOffset = App.Placement(Vector(0, 0, -85.92), App.Rotation())
add_polygon(sketch15, [(-24.1, -8.5), (-24.1, 33.3), (24.1, 33.3), (24.1, -8.5)])
sketch15.addGeometry(Part.Circle(Vector(-15.5, 27.6, 0), Vector(0, 0, 1), 1.9), False)
sketch15.addGeometry(Part.Circle(Vector(15.5, 27.6, 0), Vector(0, 0, 1), 1.9), False)
sketch15.addGeometry(Part.Circle(Vector(-15.5, -3.4, 0), Vector(0, 0, 1), 1.9), False)
sketch15.addGeometry(Part.Circle(Vector(0, 12.2, 0), Vector(0, 0, 1), 19.8), False)
sketch15.addGeometry(Part.Circle(Vector(15.5, -3.4, 0), Vector(0, 0, 1), 1.9), False)
sketch15.addConstraint([
    Sketcher.Constraint("Vertical", 0),
    Sketcher.Constraint("Horizontal", 1),
    Sketcher.Constraint("Vertical", 2),
    Sketcher.Constraint("Horizontal", 3),
    Sketcher.Constraint("Equal", 4, 5),
    Sketcher.Constraint("Equal", 5, 6),
    Sketcher.Constraint("Equal", 6, 8),
    Sketcher.Constraint("Symmetric", 4, 3, 5, 3, -2),
    Sketcher.Constraint("Symmetric", 6, 3, 8, 3, -2),
    Sketcher.Constraint("PointOnObject", 7, 3, -2),
    Sketcher.Constraint("Vertical", 4, 3, 6, 3),
    Sketcher.Constraint("Diameter", 4, Q("0.15 in")),
    Sketcher.Constraint("DistanceX", 1, 1, 1, 2, Q("1.9 in")),
    Sketcher.Constraint("Diameter", 7, 39.5),
    Sketcher.Constraint("DistanceX", 0, 2, -1, 1, Q("0.95 in")),
    Sketcher.Constraint("DistanceY", 0, 1, 0, 2, 41.79),
    Sketcher.Constraint("DistanceX", 4, 3, -1, 1, 15.5),
    Sketcher.Constraint("DistanceY", -1, 1, 4, 3, 27.65),
    Sketcher.Constraint("DistanceY", 6, 3, -1, 1, 3.35),
    Sketcher.Constraint("DistanceY", -1, 1, 7, 3, 12.15),
    Sketcher.Constraint("DistanceY", -1, 1, 0, 2, 33.29),
])
pad8 = body.newObject("PartDesign::Pad", "Pad007")
pad8.Profile = sketch15
pad8.Length = 14.8

doc.recompute()
